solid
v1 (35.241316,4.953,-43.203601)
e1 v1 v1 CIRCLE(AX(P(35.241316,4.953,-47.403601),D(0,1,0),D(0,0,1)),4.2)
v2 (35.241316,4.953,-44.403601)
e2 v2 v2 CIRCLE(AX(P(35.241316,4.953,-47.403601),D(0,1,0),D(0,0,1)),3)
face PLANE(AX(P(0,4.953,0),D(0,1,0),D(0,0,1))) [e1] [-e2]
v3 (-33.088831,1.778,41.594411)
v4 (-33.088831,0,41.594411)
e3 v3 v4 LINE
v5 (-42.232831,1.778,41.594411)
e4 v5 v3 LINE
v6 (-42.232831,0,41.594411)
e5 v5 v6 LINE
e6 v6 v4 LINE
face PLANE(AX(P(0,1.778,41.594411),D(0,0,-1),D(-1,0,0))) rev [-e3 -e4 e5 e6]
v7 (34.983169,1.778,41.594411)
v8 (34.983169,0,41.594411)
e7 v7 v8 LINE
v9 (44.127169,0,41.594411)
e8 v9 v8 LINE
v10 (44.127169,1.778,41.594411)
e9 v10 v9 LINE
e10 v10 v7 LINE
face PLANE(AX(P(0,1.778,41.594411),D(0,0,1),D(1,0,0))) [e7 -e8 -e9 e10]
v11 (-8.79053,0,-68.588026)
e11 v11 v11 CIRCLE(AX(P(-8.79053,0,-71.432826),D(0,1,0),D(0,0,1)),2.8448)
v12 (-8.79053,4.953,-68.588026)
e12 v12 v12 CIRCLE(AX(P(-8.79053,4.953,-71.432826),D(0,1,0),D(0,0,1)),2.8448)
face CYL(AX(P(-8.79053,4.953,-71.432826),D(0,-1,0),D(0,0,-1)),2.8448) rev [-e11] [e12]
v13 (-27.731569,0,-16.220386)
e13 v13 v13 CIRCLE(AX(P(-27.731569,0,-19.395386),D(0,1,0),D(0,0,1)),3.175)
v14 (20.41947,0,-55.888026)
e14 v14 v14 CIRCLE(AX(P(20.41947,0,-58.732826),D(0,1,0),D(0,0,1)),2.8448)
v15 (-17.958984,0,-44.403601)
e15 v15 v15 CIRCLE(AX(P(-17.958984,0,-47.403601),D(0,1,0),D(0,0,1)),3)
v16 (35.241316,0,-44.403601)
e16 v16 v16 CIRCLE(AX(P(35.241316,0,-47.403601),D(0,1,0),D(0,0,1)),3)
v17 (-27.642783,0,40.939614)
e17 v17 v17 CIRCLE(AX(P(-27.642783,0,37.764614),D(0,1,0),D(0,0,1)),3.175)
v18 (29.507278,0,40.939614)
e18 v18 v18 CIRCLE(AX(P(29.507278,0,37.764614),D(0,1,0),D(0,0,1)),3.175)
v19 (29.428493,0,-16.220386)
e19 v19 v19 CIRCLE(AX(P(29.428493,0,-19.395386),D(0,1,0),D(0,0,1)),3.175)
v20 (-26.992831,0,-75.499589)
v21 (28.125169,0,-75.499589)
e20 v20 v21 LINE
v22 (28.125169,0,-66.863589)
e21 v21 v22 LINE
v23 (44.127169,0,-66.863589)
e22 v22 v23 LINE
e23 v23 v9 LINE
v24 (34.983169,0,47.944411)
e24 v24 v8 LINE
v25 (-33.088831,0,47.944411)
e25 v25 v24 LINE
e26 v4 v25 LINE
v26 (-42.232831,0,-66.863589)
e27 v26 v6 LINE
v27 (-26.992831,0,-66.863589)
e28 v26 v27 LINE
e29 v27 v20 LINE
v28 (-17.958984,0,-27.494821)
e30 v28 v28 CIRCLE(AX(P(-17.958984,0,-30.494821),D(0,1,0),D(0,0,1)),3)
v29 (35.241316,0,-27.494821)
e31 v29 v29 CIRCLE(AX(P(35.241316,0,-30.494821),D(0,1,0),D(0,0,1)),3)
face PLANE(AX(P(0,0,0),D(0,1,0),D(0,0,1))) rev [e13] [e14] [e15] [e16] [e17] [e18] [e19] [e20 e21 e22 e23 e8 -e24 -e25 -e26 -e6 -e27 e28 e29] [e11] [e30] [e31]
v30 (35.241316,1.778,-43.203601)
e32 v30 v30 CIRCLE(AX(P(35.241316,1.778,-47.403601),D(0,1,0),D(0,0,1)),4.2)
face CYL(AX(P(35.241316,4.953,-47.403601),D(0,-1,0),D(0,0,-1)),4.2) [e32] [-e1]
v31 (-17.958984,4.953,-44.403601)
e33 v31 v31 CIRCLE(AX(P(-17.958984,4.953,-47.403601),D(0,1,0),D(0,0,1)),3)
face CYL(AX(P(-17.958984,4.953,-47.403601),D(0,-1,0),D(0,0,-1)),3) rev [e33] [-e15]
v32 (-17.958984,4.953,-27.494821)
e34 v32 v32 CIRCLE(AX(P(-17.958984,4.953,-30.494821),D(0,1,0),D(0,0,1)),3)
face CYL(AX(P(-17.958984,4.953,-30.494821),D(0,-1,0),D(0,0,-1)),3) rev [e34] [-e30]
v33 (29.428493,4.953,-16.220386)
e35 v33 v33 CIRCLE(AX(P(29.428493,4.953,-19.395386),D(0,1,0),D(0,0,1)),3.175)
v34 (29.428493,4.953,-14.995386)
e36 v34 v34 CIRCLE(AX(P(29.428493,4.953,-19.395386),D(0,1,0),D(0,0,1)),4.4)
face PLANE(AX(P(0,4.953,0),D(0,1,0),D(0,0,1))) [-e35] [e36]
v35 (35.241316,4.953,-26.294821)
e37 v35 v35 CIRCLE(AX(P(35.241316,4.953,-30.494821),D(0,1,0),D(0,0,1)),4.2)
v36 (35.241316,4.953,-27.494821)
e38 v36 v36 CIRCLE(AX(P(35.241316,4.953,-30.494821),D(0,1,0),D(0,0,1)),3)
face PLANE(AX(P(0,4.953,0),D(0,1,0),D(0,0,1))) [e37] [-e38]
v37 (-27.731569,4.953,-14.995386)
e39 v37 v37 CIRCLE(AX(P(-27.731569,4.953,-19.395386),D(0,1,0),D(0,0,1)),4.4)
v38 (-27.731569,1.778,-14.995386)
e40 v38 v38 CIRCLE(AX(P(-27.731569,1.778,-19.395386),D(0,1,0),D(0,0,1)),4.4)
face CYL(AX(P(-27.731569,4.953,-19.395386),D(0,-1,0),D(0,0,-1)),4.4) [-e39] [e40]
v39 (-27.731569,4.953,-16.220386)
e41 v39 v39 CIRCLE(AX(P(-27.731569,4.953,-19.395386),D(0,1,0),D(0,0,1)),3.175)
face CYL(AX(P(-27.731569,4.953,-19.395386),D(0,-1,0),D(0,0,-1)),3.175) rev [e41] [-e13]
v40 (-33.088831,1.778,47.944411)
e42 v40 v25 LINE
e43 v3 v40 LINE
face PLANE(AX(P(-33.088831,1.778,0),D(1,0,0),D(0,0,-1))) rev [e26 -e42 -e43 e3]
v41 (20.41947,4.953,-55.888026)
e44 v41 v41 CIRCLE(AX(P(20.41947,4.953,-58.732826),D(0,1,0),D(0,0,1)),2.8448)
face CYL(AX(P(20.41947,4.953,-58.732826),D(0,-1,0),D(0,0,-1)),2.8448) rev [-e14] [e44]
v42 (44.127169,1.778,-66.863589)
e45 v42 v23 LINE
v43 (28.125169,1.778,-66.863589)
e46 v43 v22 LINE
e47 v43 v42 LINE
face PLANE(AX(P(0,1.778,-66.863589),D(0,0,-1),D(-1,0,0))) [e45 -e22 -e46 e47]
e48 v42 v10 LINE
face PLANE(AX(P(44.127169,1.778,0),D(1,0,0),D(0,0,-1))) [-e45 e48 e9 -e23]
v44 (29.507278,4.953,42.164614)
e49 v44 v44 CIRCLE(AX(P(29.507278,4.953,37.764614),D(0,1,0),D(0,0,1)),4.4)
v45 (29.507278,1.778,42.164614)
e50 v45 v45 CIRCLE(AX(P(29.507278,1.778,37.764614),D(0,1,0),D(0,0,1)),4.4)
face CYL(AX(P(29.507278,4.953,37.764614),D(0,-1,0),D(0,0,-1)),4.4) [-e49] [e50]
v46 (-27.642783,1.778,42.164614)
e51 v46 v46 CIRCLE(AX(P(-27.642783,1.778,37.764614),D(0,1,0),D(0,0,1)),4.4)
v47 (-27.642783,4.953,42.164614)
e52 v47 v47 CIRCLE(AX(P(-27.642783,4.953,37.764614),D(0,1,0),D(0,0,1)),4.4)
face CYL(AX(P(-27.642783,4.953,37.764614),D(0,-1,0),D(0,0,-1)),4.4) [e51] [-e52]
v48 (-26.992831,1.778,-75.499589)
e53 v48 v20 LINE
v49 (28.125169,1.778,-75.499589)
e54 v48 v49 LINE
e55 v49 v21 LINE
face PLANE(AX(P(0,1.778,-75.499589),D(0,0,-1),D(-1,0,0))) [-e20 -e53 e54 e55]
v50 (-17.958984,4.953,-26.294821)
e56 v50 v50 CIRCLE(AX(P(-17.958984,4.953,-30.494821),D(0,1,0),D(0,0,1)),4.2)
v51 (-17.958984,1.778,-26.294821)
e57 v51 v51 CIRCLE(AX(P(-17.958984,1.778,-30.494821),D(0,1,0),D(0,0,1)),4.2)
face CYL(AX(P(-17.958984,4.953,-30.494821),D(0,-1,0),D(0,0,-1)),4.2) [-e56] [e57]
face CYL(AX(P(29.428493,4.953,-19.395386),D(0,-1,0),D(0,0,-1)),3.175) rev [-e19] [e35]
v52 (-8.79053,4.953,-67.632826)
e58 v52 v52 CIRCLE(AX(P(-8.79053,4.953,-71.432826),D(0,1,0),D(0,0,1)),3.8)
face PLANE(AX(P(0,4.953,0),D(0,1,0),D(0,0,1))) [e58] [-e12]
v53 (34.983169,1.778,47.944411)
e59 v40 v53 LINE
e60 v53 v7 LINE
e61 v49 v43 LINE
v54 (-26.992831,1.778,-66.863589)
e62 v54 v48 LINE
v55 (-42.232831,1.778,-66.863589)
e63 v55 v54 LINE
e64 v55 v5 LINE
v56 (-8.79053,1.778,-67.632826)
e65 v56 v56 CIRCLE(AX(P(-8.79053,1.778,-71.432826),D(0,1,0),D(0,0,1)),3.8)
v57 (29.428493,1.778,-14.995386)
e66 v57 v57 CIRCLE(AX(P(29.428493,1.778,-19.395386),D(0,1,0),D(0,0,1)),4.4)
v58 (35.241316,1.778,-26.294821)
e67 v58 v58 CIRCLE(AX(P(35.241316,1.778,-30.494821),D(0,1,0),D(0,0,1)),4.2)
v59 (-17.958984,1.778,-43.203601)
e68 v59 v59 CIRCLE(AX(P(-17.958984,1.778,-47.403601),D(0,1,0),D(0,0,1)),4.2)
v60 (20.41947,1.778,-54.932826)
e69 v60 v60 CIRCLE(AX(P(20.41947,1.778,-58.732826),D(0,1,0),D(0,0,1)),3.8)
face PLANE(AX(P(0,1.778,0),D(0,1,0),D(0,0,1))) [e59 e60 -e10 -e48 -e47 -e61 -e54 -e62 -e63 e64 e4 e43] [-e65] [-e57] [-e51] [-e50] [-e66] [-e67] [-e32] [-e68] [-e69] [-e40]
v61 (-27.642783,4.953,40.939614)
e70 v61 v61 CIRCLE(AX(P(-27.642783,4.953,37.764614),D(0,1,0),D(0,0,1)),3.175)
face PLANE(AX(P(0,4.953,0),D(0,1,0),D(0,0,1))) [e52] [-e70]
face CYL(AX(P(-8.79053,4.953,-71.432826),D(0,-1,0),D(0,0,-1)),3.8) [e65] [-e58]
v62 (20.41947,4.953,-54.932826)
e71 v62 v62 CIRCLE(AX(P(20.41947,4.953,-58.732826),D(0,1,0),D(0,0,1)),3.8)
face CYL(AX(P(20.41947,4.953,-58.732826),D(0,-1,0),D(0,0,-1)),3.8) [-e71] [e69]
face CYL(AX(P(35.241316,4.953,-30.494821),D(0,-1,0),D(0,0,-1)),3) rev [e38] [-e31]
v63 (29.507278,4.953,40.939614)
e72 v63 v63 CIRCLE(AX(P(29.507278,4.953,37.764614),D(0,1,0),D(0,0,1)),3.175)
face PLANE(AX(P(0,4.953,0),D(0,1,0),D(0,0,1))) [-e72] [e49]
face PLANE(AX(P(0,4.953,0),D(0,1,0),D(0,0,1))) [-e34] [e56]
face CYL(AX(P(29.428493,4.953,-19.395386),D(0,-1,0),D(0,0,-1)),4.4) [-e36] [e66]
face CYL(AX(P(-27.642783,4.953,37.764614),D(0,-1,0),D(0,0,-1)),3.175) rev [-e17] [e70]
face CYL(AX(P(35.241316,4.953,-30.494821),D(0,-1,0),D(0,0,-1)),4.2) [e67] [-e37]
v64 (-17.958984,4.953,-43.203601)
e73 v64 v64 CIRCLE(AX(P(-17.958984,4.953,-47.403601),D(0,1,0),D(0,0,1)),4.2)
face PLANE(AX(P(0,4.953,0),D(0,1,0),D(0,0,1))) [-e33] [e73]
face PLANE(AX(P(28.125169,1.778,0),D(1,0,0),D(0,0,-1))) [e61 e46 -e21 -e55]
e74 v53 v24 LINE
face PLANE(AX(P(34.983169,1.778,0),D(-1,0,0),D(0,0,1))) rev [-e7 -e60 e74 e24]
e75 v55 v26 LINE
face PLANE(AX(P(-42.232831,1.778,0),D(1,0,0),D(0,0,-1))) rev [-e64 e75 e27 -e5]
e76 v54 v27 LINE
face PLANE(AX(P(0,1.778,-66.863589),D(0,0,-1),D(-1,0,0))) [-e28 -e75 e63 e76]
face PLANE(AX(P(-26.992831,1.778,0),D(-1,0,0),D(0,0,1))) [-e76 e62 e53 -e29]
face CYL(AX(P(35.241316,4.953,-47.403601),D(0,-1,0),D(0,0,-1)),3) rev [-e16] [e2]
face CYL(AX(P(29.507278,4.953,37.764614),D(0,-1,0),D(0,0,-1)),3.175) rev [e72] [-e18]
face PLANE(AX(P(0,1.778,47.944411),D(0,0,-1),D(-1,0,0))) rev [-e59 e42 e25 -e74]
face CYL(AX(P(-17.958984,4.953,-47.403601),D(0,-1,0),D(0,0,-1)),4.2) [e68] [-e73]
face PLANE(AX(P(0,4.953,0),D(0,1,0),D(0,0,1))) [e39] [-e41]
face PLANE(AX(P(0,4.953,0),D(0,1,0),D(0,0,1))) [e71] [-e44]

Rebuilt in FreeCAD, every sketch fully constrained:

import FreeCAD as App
import Part
import Sketcher

V = App.Vector
Q = App.Units.Quantity


def add_polygon(sketch, points):
    """Adds a closed chain of lines whose ends are joined by coincident constraints."""
    first, n = sketch.GeometryCount, len(points)
    for a, b in zip(points, points[1:] + points[:1]):
        sketch.addGeometry(Part.LineSegment(App.Vector(*a, 0), App.Vector(*b, 0)), False)
    for i in range(n):
        sketch.addConstraint(Sketcher.Constraint("Coincident", first + i, 2, first + (i + 1) % n, 1))

doc = App.newDocument("Part")
body = doc.addObject("PartDesign::Body", "Body")

sketch1 = body.newObject("Sketcher::SketchObject", "Sketch")
sketch1.AttachmentSupport = (doc.getObject("XZ_Plane"), [""])
sketch1.MapMode = "FlatFace"
add_polygon(sketch1, [(-42.232831, 41.594411), (-33.088831, 41.594411), (-33.088831, 47.944411), (34.983169, 47.944411), (34.983169, 41.594411), (44.127169, 41.594411), (44.127169, -66.863589), (28.125169, -66.863589), (28.125169, -75.499589), (-26.992831, -75.499589), (-26.992831, -66.863589), (-42.232831, -66.863589)])
sketch1.addGeometry(Part.Circle(V(-27.642783, 37.764614, 0), V(0, 0, 1), 4.4), False)
sketch1.addGeometry(Part.Circle(V(29.507278, 37.764614, 0), V(0, 0, 1), 4.4), False)
sketch1.addGeometry(Part.Circle(V(-27.731569, -19.395386, 0), V(0, 0, 1), 4.4), False)
sketch1.addGeometry(Part.Circle(V(-17.958984, -30.494821, 0), V(0, 0, 1), 4.2), False)
sketch1.addGeometry(Part.Circle(V(-17.958984, -47.403601, 0), V(0, 0, 1), 4.2), False)
sketch1.addGeometry(Part.Circle(V(-8.79053, -71.432826, 0), V(0, 0, 1), 3.8), False)
sketch1.addGeometry(Part.Circle(V(29.428493, -19.395386, 0), V(0, 0, 1), 4.4), False)
sketch1.addGeometry(Part.Circle(V(35.241316, -30.494821, 0), V(0, 0, 1), 4.2), False)
sketch1.addGeometry(Part.Circle(V(20.41947, -58.732826, 0), V(0, 0, 1), 3.8), False)
sketch1.addGeometry(Part.Circle(V(35.241316, -47.403601, 0), V(0, 0, 1), 4.2), False)
sketch1.addConstraint([
    Sketcher.Constraint("Horizontal", 0),
    Sketcher.Constraint("Vertical", 1),
    Sketcher.Constraint("Horizontal", 2),
    Sketcher.Constraint("Vertical", 3),
    Sketcher.Constraint("Horizontal", 4),
    Sketcher.Constraint("Vertical", 5),
    Sketcher.Constraint("Horizontal", 6),
    Sketcher.Constraint("Vertical", 7),
    Sketcher.Constraint("Horizontal", 8),
    Sketcher.Constraint("Vertical", 9),
    Sketcher.Constraint("Horizontal", 10),
    Sketcher.Constraint("Vertical", 11),
    Sketcher.Constraint("Equal", 12, 13),
    Sketcher.Constraint("Equal", 13, 14),
    Sketcher.Constraint("Equal", 15, 16),
    Sketcher.Constraint("Equal", 14, 18),
    Sketcher.Constraint("Equal", 16, 19),
    Sketcher.Constraint("Equal", 17, 20),
    Sketcher.Constraint("Equal", 19, 21),
    Sketcher.Constraint("Horizontal", 12, 3, 13, 3),
    Sketcher.Constraint("Horizontal", 14, 3, 18, 3),
    Sketcher.Constraint("Horizontal", 15, 3, 19, 3),
    Sketcher.Constraint("Horizontal", 16, 3, 21, 3),
    Sketcher.Constraint("Horizontal", 0, 2, 3, 2),
    Sketcher.Constraint("Horizontal", 6, 2, 9, 2),
    Sketcher.Constraint("Vertical", 15, 3, 16, 3),
    Sketcher.Constraint("Vertical", 19, 3, 21, 3),
    Sketcher.Constraint("Equal", 0, 4),
    Sketcher.Constraint("DistanceX", 10, 2, 10, 1, Q("0.6 in")),
    Sketcher.Constraint("DistanceX", 0, 1, 0, 2, Q("0.36 in")),
    Sketcher.Constraint("DistanceX", 2, 1, 2, 2, Q("2.68 in")),
    Sketcher.Constraint("DistanceX", 6, 2, 6, 1, Q("0.63 in")),
    Sketcher.Constraint("DistanceY", 1, 1, 1, 2, Q("0.25 in")),
    Sketcher.Constraint("DistanceY", 5, 2, 5, 1, Q("4.27 in")),
    Sketcher.Constraint("DistanceY", 7, 2, 7, 1, Q("0.34 in")),
    Sketcher.Constraint("DistanceY", 17, 3, 20, 3, Q("0.5 in")),
    Sketcher.Constraint("Diameter", 12, Q("8.8 mm")),
    Sketcher.Constraint("Diameter", 15, Q("8.4 mm")),
    Sketcher.Constraint("Diameter", 17, Q("7.6 mm")),
    Sketcher.Constraint("DistanceX", 17, 3, 20, 3, Q("1.15 in")),
    Sketcher.Constraint("DistanceY", 16, 3, 15, 3, Q("0.6657 in")),
    Sketcher.Constraint("DistanceX", 15, 3, 19, 3, Q("2.0945 in")),
    Sketcher.Constraint("DistanceY", 16, 3, -1, 1, Q("47.403601 mm")),
    Sketcher.Constraint("DistanceY", 14, 3, 12, 3, Q("57.16 mm")),
    Sketcher.Constraint("DistanceX", 12, 3, 15, 3, Q("9.6838 mm")),
    Sketcher.Constraint("DistanceX", 20, 3, 5, 2, Q("23.707699 mm")),
    Sketcher.Constraint("DistanceX", -1, 1, 13, 3, Q("29.507278 mm")),
    Sketcher.Constraint("DistanceX", 14, 3, -1, 1, Q("27.731569 mm")),
    Sketcher.Constraint("DistanceX", 17, 3, -1, 1, Q("8.79053 mm")),
    Sketcher.Constraint("DistanceY", -1, 1, 0, 2, Q("41.594411 mm")),
    Sketcher.Constraint("DistanceX", 12, 3, 13, 3, Q("57.150061 mm")),
    Sketcher.Constraint("DistanceY", 17, 3, 14, 3, Q("52.03744 mm")),
    Sketcher.Constraint("DistanceX", 14, 3, 18, 3, Q("57.160061 mm")),
    Sketcher.Constraint("DistanceY", -1, 1, 12, 3, Q("37.764614 mm")),
])
pad1 = body.newObject("PartDesign::Pad", "Pad")
pad1.Profile = sketch1
pad1.Length = Q("0.07 in")
pad1.Reversed = True

sketch2 = body.newObject("Sketcher::SketchObject", "Sketch001")
sketch2.AttachmentSupport = (doc.getObject("XZ_Plane"), [""])
sketch2.MapMode = "FlatFace"
sketch2.addGeometry([
    Part.Circle(V(-17.958984, -47.403601, 0), V(0, 0, 1), 4.2),
    Part.Circle(V(-17.958984, -47.403601, 0), V(0, 0, 1), 3),
    Part.Circle(V(-17.958984, -30.494821, 0), V(0, 0, 1), 4.2),
    Part.Circle(V(-17.958984, -30.494821, 0), V(0, 0, 1), 3),
    Part.Circle(V(35.241316, -47.403601, 0), V(0, 0, 1), 4.2),
    Part.Circle(V(35.241316, -47.403601, 0), V(0, 0, 1), 3),
    Part.Circle(V(35.241316, -30.494821, 0), V(0, 0, 1), 4.2),
    Part.Circle(V(35.241316, -30.494821, 0), V(0, 0, 1), 3),
    Part.Circle(V(-27.731569, -19.395386, 0), V(0, 0, 1), 4.4),
    Part.Circle(V(-27.731569, -19.395386, 0), V(0, 0, 1), 3.175),
    Part.Circle(V(-27.642783, 37.764614, 0), V(0, 0, 1), 4.4),
    Part.Circle(V(-27.642783, 37.764614, 0), V(0, 0, 1), 3.175),
    Part.Circle(V(29.507278, 37.764614, 0), V(0, 0, 1), 4.4),
    Part.Circle(V(29.507278, 37.764614, 0), V(0, 0, 1), 3.175),
    Part.Circle(V(29.428493, -19.395386, 0), V(0, 0, 1), 4.4),
    Part.Circle(V(29.428493, -19.395386, 0), V(0, 0, 1), 3.175),
    Part.Circle(V(-8.79053, -71.432826, 0), V(0, 0, 1), 3.8),
    Part.Circle(V(-8.79053, -71.432826, 0), V(0, 0, 1), 2.8448),
    Part.Circle(V(20.41947, -58.732826, 0), V(0, 0, 1), 3.8),
    Part.Circle(V(20.41947, -58.732826, 0), V(0, 0, 1), 2.8448),
], False)
sketch2.addConstraint([
    Sketcher.Constraint("Coincident", 1, 3, 0, 3),
    Sketcher.Constraint("Coincident", 3, 3, 2, 3),
    Sketcher.Constraint("Coincident", 5, 3, 4, 3),
    Sketcher.Constraint("Coincident", 7, 3, 6, 3),
    Sketcher.Constraint("Coincident", 9, 3, 8, 3),
    Sketcher.Constraint("Coincident", 11, 3, 10, 3),
    Sketcher.Constraint("Coincident", 13, 3, 12, 3),
    Sketcher.Constraint("Coincident", 15, 3, 14, 3),
    Sketcher.Constraint("Coincident", 17, 3, 16, 3),
    Sketcher.Constraint("Coincident", 19, 3, 18, 3),
    Sketcher.Constraint("Equal", 0, 2),
    Sketcher.Constraint("Equal", 1, 3),
    Sketcher.Constraint("Equal", 2, 4),
    Sketcher.Constraint("Equal", 3, 5),
    Sketcher.Constraint("Equal", 4, 6),
    Sketcher.Constraint("Equal", 5, 7),
    Sketcher.Constraint("Equal", 8, 10),
    Sketcher.Constraint("Equal", 9, 11),
    Sketcher.Constraint("Equal", 10, 12),
    Sketcher.Constraint("Equal", 11, 13),
    Sketcher.Constraint("Equal", 12, 14),
    Sketcher.Constraint("Equal", 13, 15),
    Sketcher.Constraint("Equal", 16, 18),
    Sketcher.Constraint("Equal", 17, 19),
    Sketcher.Constraint("Horizontal", 1, 3, 4, 3),
    Sketcher.Constraint("Horizontal", 3, 3, 6, 3),
    Sketcher.Constraint("Horizontal", 11, 3, 12, 3),
    Sketcher.Constraint("Horizontal", 9, 3, 14, 3),
    Sketcher.Constraint("Vertical", 1, 3, 2, 3),
    Sketcher.Constraint("Vertical", 5, 3, 6, 3),
    Sketcher.Constraint("Diameter", 9, Q("0.25 in")),
    Sketcher.Constraint("Diameter", 17, Q("0.224 in")),
    Sketcher.Constraint("DistanceY", 16, 3, 18, 3, Q("0.5 in")),
    Sketcher.Constraint("Diameter", 0, Q("8.4 mm")),
    Sketcher.Constraint("Diameter", 1, Q("6 mm")),
    Sketcher.Constraint("Diameter", 8, Q("8.8 mm")),
    Sketcher.Constraint("Diameter", 16, Q("7.6 mm")),
    Sketcher.Constraint("DistanceX", 16, 3, 18, 3, Q("1.15 in")),
    Sketcher.Constraint("DistanceY", 0, 3, 2, 3, Q("0.6657 in")),
    Sketcher.Constraint("DistanceX", 0, 3, 4, 3, Q("2.0945 in")),
    Sketcher.Constraint("DistanceY", 0, 3, -1, 1, Q("47.403601 mm")),
    Sketcher.Constraint("DistanceY", 8, 3, 10, 3, Q("57.16 mm")),
    Sketcher.Constraint("DistanceX", 10, 3, 2, 3, Q("9.6838 mm")),
    Sketcher.Constraint("DistanceX", 8, 3, -1, 1, Q("27.731569 mm")),
    Sketcher.Constraint("DistanceX", -1, 1, 12, 3, Q("29.507278 mm")),
    Sketcher.Constraint("DistanceX", 16, 3, -1, 1, Q("8.79053 mm")),
    Sketcher.Constraint("DistanceX", 10, 3, 12, 3, Q("57.150061 mm")),
    Sketcher.Constraint("DistanceY", 8, 3, -1, 1, Q("19.395386 mm")),
    Sketcher.Constraint("DistanceX", -1, 1, 14, 3, Q("29.428493 mm")),
    Sketcher.Constraint("DistanceY", 16, 3, -1, 1, Q("71.432826 mm")),
])
pad2 = body.newObject("PartDesign::Pad", "Pad001")
pad2.Profile = sketch2
pad2.Length = Q("0.195 in")
pad2.Reversed = True

doc.recompute()
